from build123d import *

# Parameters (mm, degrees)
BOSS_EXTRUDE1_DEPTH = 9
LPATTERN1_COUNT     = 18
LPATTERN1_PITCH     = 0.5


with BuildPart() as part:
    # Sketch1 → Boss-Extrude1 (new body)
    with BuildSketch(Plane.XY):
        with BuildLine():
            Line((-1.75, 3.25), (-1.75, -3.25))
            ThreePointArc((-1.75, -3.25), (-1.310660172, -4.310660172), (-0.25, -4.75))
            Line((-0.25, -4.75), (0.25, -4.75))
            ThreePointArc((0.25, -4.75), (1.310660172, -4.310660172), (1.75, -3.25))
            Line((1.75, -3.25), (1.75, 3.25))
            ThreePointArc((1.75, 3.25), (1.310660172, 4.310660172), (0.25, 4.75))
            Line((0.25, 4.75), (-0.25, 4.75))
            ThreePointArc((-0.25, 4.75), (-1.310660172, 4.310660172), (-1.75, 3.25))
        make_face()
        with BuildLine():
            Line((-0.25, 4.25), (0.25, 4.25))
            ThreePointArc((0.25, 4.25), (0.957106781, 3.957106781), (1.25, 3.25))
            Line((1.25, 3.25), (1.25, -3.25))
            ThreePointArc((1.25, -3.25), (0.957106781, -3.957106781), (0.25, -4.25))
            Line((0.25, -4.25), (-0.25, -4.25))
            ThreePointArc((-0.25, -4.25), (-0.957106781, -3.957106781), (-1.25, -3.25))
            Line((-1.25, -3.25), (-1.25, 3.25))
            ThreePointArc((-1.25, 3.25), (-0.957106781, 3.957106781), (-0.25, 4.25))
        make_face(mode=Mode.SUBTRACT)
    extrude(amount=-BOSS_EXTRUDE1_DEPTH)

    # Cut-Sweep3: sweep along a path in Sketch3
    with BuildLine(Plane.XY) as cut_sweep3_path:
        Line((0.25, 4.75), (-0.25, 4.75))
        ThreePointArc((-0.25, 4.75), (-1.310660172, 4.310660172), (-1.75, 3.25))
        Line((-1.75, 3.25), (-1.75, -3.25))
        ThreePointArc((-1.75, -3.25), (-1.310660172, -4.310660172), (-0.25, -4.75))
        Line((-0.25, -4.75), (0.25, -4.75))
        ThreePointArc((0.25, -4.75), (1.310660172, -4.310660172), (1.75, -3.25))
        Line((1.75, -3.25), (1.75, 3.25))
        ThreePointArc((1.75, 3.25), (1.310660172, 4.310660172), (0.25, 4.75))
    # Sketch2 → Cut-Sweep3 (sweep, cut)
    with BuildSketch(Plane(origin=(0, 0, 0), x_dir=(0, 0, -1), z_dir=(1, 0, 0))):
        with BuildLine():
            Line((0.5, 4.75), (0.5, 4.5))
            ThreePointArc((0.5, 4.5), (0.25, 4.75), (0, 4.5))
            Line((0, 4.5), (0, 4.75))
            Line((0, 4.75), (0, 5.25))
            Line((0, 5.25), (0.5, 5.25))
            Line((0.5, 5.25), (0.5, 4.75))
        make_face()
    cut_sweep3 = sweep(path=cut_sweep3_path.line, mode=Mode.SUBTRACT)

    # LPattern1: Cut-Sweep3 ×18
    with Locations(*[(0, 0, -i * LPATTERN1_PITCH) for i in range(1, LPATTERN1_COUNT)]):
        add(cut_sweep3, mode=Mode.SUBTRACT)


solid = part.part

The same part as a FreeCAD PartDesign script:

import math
import FreeCAD as App
import Part
import Sketcher
from FreeCAD import Vector

doc = App.newDocument("Part")
body = doc.addObject("PartDesign::Body", "Body")

# Sketch on XY plane
sketch1 = doc.addObject("Sketcher::SketchObject", "Sketch")
body.addObject(sketch1)
sketch1.AttachmentSupport = (doc.XY_Plane, [""])
sketch1.MapMode = "FlatFace"
sketch1.addGeometry(Part.LineSegment(Vector(-1.8, 3.2, 0), Vector(-1.8, -3.2, 0)), False)
sketch1.addGeometry(Part.ArcOfCircle(Part.Circle(Vector(-0.3, -3.3, 0), Vector(0, 0, 1), 1.5), math.radians(180), math.radians(270)), False)
sketch1.addGeometry(Part.LineSegment(Vector(-0.2, -4.8, 0), Vector(0.2, -4.8, 0)), False)
sketch1.addGeometry(Part.ArcOfCircle(Part.Circle(Vector(0.3, -3.3, 0), Vector(0, 0, 1), 1.5), math.radians(-90), math.radians(0)), False)
sketch1.addGeometry(Part.LineSegment(Vector(1.8, -3.2, 0), Vector(1.8, 3.2, 0)), False)
sketch1.addGeometry(Part.ArcOfCircle(Part.Circle(Vector(0.3, 3.3, 0), Vector(0, 0, 1), 1.5), math.radians(0), math.radians(90)), False)
sketch1.addGeometry(Part.LineSegment(Vector(0.2, 4.8, 0), Vector(-0.2, 4.8, 0)), False)
sketch1.addGeometry(Part.ArcOfCircle(Part.Circle(Vector(-0.3, 3.3, 0), Vector(0, 0, 1), 1.5), math.radians(90), math.radians(180)), False)
sketch1.addGeometry(Part.ArcOfCircle(Part.Circle(Vector(-0.2, 3.2, 0), Vector(0, 0, 1), 1), math.radians(90), math.radians(180)), False)
sketch1.addGeometry(Part.LineSegment(Vector(-0.2, 4.2, 0), Vector(0.2, 4.2, 0)), False)
sketch1.addGeometry(Part.ArcOfCircle(Part.Circle(Vector(0.2, 3.2, 0), Vector(0, 0, 1), 1), math.radians(0), math.radians(90)), False)
sketch1.addGeometry(Part.LineSegment(Vector(1.2, 3.2, 0), Vector(1.2, -3.2, 0)), False)
sketch1.addGeometry(Part.ArcOfCircle(Part.Circle(Vector(0.2, -3.2, 0), Vector(0, 0, 1), 1), math.radians(-90), math.radians(0)), False)
sketch1.addGeometry(Part.LineSegment(Vector(0.2, -4.2, 0), Vector(-0.2, -4.2, 0)), False)
sketch1.addGeometry(Part.ArcOfCircle(Part.Circle(Vector(-0.2, -3.2, 0), Vector(0, 0, 1), 1), math.radians(-180), math.radians(-90)), False)
sketch1.addGeometry(Part.LineSegment(Vector(-1.2, -3.2, 0), Vector(-1.2, 3.2, 0)), False)
sketch1.addConstraint(Sketcher.Constraint("Tangent", 0, 2, 1, 1))
sketch1.addConstraint(Sketcher.Constraint("Tangent", 1, 2, 2, 1))
sketch1.addConstraint(Sketcher.Constraint("Tangent", 2, 2, 3, 1))
sketch1.addConstraint(Sketcher.Constraint("Tangent", 3, 2, 4, 1))
sketch1.addConstraint(Sketcher.Constraint("Tangent", 4, 2, 5, 1))
sketch1.addConstraint(Sketcher.Constraint("Tangent", 5, 2, 6, 1))
sketch1.addConstraint(Sketcher.Constraint("Tangent", 6, 2, 7, 1))
sketch1.addConstraint(Sketcher.Constraint("Tangent", 7, 2, 0, 1))
sketch1.addConstraint(Sketcher.Constraint("Tangent", 8, 1, 9, 1))
sketch1.addConstraint(Sketcher.Constraint("Tangent", 9, 2, 10, 2))
sketch1.addConstraint(Sketcher.Constraint("Tangent", 10, 1, 11, 1))
sketch1.addConstraint(Sketcher.Constraint("Tangent", 11, 2, 12, 2))
sketch1.addConstraint(Sketcher.Constraint("Tangent", 12, 1, 13, 1))
sketch1.addConstraint(Sketcher.Constraint("Tangent", 13, 2, 14, 2))
sketch1.addConstraint(Sketcher.Constraint("Tangent", 14, 1, 15, 1))
sketch1.addConstraint(Sketcher.Constraint("Tangent", 15, 2, 8, 2))
sketch1.addConstraint(Sketcher.Constraint("Vertical", 0))
sketch1.addConstraint(Sketcher.Constraint("Horizontal", 2))
sketch1.addConstraint(Sketcher.Constraint("Vertical", 4))
sketch1.addConstraint(Sketcher.Constraint("Horizontal", 6))
sketch1.addConstraint(Sketcher.Constraint("Horizontal", 9))
sketch1.addConstraint(Sketcher.Constraint("Vertical", 11))
sketch1.addConstraint(Sketcher.Constraint("Horizontal", 13))
sketch1.addConstraint(Sketcher.Constraint("Vertical", 15))
sketch1.addConstraint(Sketcher.Constraint("Coincident", 8, 3, 7, 3))
sketch1.addConstraint(Sketcher.Constraint("Coincident", 10, 3, 5, 3))
sketch1.addConstraint(Sketcher.Constraint("Coincident", 12, 3, 3, 3))
sketch1.addConstraint(Sketcher.Constraint("Equal", 1, 3))
sketch1.addConstraint(Sketcher.Constraint("Equal", 3, 5))
sketch1.addConstraint(Sketcher.Constraint("Equal", 5, 7))
sketch1.addConstraint(Sketcher.Constraint("Equal", 12, 14))
sketch1.addConstraint(Sketcher.Constraint("Symmetric", 1, 3, 5, 3, -1, 1))
sketch1.addConstraint(Sketcher.Constraint("Radius", 8, 1.0))
sketch1.addConstraint(Sketcher.Constraint("Radius", 1, 1.5))
sketch1.addConstraint(Sketcher.Constraint("DistanceX", 2, 1, 2, 2, 0.5))
sketch1.addConstraint(Sketcher.Constraint("DistanceY", 0, 2, 0, 1, 6.5))
pad1 = doc.addObject("PartDesign::Pad", "Pad")
body.addObject(pad1)
pad1.Profile = sketch1
pad1.Length = 9
pad1.Reversed = True

# Sketch on YZ plane
sketch2 = doc.addObject("Sketcher::SketchObject", "Sketch001")
body.addObject(sketch2)
sketch2.AttachmentSupport = (doc.YZ_Plane, [""])
sketch2.MapMode = "FlatFace"
sketch2.addGeometry(Part.ArcOfCircle(Part.Circle(Vector(4.5, -0.25, 0), Vector(0, 0, 1), 0.25), math.radians(-90), math.radians(90)), False)
sketch2.addGeometry(Part.LineSegment(Vector(4.5, -0.5, 0), Vector(5.25, -0.5, 0)), False)
sketch2.addGeometry(Part.LineSegment(Vector(5.25, -0.5, 0), Vector(5.25, 0, 0)), False)
sketch2.addGeometry(Part.LineSegment(Vector(5.25, 0, 0), Vector(4.5, 0, 0)), False)
sketch2.addConstraint(Sketcher.Constraint("Tangent", 0, 1, 1, 1))
sketch2.addConstraint(Sketcher.Constraint("Coincident", 1, 2, 2, 1))
sketch2.addConstraint(Sketcher.Constraint("Coincident", 2, 2, 3, 1))
sketch2.addConstraint(Sketcher.Constraint("Tangent", 3, 2, 0, 2))
sketch2.addConstraint(Sketcher.Constraint("Horizontal", 1))
sketch2.addConstraint(Sketcher.Constraint("Vertical", 2))
sketch2.addConstraint(Sketcher.Constraint("Horizontal", 3))
sketch2.addConstraint(Sketcher.Constraint("PointOnObject", 2, 2, -1))
sketch2.addConstraint(Sketcher.Constraint("Radius", 0, 0.25))
sketch2.addConstraint(Sketcher.Constraint("DistanceX", 1, 1, 1, 2, 0.75))
sketch2.addConstraint(Sketcher.Constraint("DistanceX", -1, 1, 0, 3, 4.5))

# Sketch on XY plane
sketch3 = doc.addObject("Sketcher::SketchObject", "Sketch002")
body.addObject(sketch3)
sketch3.AttachmentSupport = (doc.XY_Plane, [""])
sketch3.MapMode = "FlatFace"
sketch3.addGeometry(Part.LineSegment(Vector(0.2, 4.8, 0), Vector(-0.2, 4.8, 0)), False)
sketch3.addGeometry(Part.ArcOfCircle(Part.Circle(Vector(-0.3, 3.3, 0), Vector(0, 0, 1), 1.5), math.radians(90), math.radians(180)), False)
sketch3.addGeometry(Part.LineSegment(Vector(-1.8, 3.2, 0), Vector(-1.8, -3.2, 0)), False)
sketch3.addGeometry(Part.ArcOfCircle(Part.Circle(Vector(-0.3, -3.3, 0), Vector(0, 0, 1), 1.5), math.radians(180), math.radians(270)), False)
sketch3.addGeometry(Part.LineSegment(Vector(-0.2, -4.8, 0), Vector(0.2, -4.8, 0)), False)
sketch3.addGeometry(Part.ArcOfCircle(Part.Circle(Vector(0.3, -3.3, 0), Vector(0, 0, 1), 1.5), math.radians(-90), math.radians(0)), False)
sketch3.addGeometry(Part.LineSegment(Vector(1.8, -3.2, 0), Vector(1.8, 3.2, 0)), False)
sketch3.addGeometry(Part.ArcOfCircle(Part.Circle(Vector(0.3, 3.3, 0), Vector(0, 0, 1), 1.5), math.radians(0), math.radians(90)), False)
sketch3.addConstraint(Sketcher.Constraint("Tangent", 0, 2, 1, 1))
sketch3.addConstraint(Sketcher.Constraint("Tangent", 1, 2, 2, 1))
sketch3.addConstraint(Sketcher.Constraint("Tangent", 2, 2, 3, 1))
sketch3.addConstraint(Sketcher.Constraint("Tangent", 3, 2, 4, 1))
sketch3.addConstraint(Sketcher.Constraint("Tangent", 4, 2, 5, 1))
sketch3.addConstraint(Sketcher.Constraint("Tangent", 5, 2, 6, 1))
sketch3.addConstraint(Sketcher.Constraint("Tangent", 6, 2, 7, 1))
sketch3.addConstraint(Sketcher.Constraint("Tangent", 7, 2, 0, 1))
sketch3.addConstraint(Sketcher.Constraint("Horizontal", 0))
sketch3.addConstraint(Sketcher.Constraint("Vertical", 2))
sketch3.addConstraint(Sketcher.Constraint("Horizontal", 4))
sketch3.addConstraint(Sketcher.Constraint("Vertical", 6))
sketch3.addConstraint(Sketcher.Constraint("Equal", 1, 3))
sketch3.addConstraint(Sketcher.Constraint("Equal", 3, 5))
sketch3.addConstraint(Sketcher.Constraint("Equal", 5, 7))
sketch3.addConstraint(Sketcher.Constraint("Symmetric", 1, 3, 5, 3, -1, 1))
sketch3.addConstraint(Sketcher.Constraint("Radius", 1, 1.5))
sketch3.addConstraint(Sketcher.Constraint("DistanceX", 0, 2, 0, 1, 0.5))
sketch3.addConstraint(Sketcher.Constraint("DistanceY", 2, 2, 2, 1, 6.5))
doc.recompute()

subtractivepipe = doc.addObject("PartDesign::SubtractivePipe", "SubtractivePipe")
body.addObject(subtractivepipe)
subtractivepipe.Profile = sketch2
subtractivepipe.Spine = (sketch3, ["Edge1", "Edge2", "Edge3", "Edge4", "Edge5", "Edge6", "Edge7", "Edge8"])
doc.recompute()

linearpattern = doc.addObject("PartDesign::LinearPattern", "LinearPattern")
body.addObject(linearpattern)
linearpattern.Originals = [subtractivepipe]
linearpattern.Direction = (doc.Z_Axis, [""])
linearpattern.Mode = "offset"
linearpattern.Offset = 0.5
linearpattern.Occurrences = 18
linearpattern.Reversed = True
body.Tip = linearpattern

doc.recompute()
